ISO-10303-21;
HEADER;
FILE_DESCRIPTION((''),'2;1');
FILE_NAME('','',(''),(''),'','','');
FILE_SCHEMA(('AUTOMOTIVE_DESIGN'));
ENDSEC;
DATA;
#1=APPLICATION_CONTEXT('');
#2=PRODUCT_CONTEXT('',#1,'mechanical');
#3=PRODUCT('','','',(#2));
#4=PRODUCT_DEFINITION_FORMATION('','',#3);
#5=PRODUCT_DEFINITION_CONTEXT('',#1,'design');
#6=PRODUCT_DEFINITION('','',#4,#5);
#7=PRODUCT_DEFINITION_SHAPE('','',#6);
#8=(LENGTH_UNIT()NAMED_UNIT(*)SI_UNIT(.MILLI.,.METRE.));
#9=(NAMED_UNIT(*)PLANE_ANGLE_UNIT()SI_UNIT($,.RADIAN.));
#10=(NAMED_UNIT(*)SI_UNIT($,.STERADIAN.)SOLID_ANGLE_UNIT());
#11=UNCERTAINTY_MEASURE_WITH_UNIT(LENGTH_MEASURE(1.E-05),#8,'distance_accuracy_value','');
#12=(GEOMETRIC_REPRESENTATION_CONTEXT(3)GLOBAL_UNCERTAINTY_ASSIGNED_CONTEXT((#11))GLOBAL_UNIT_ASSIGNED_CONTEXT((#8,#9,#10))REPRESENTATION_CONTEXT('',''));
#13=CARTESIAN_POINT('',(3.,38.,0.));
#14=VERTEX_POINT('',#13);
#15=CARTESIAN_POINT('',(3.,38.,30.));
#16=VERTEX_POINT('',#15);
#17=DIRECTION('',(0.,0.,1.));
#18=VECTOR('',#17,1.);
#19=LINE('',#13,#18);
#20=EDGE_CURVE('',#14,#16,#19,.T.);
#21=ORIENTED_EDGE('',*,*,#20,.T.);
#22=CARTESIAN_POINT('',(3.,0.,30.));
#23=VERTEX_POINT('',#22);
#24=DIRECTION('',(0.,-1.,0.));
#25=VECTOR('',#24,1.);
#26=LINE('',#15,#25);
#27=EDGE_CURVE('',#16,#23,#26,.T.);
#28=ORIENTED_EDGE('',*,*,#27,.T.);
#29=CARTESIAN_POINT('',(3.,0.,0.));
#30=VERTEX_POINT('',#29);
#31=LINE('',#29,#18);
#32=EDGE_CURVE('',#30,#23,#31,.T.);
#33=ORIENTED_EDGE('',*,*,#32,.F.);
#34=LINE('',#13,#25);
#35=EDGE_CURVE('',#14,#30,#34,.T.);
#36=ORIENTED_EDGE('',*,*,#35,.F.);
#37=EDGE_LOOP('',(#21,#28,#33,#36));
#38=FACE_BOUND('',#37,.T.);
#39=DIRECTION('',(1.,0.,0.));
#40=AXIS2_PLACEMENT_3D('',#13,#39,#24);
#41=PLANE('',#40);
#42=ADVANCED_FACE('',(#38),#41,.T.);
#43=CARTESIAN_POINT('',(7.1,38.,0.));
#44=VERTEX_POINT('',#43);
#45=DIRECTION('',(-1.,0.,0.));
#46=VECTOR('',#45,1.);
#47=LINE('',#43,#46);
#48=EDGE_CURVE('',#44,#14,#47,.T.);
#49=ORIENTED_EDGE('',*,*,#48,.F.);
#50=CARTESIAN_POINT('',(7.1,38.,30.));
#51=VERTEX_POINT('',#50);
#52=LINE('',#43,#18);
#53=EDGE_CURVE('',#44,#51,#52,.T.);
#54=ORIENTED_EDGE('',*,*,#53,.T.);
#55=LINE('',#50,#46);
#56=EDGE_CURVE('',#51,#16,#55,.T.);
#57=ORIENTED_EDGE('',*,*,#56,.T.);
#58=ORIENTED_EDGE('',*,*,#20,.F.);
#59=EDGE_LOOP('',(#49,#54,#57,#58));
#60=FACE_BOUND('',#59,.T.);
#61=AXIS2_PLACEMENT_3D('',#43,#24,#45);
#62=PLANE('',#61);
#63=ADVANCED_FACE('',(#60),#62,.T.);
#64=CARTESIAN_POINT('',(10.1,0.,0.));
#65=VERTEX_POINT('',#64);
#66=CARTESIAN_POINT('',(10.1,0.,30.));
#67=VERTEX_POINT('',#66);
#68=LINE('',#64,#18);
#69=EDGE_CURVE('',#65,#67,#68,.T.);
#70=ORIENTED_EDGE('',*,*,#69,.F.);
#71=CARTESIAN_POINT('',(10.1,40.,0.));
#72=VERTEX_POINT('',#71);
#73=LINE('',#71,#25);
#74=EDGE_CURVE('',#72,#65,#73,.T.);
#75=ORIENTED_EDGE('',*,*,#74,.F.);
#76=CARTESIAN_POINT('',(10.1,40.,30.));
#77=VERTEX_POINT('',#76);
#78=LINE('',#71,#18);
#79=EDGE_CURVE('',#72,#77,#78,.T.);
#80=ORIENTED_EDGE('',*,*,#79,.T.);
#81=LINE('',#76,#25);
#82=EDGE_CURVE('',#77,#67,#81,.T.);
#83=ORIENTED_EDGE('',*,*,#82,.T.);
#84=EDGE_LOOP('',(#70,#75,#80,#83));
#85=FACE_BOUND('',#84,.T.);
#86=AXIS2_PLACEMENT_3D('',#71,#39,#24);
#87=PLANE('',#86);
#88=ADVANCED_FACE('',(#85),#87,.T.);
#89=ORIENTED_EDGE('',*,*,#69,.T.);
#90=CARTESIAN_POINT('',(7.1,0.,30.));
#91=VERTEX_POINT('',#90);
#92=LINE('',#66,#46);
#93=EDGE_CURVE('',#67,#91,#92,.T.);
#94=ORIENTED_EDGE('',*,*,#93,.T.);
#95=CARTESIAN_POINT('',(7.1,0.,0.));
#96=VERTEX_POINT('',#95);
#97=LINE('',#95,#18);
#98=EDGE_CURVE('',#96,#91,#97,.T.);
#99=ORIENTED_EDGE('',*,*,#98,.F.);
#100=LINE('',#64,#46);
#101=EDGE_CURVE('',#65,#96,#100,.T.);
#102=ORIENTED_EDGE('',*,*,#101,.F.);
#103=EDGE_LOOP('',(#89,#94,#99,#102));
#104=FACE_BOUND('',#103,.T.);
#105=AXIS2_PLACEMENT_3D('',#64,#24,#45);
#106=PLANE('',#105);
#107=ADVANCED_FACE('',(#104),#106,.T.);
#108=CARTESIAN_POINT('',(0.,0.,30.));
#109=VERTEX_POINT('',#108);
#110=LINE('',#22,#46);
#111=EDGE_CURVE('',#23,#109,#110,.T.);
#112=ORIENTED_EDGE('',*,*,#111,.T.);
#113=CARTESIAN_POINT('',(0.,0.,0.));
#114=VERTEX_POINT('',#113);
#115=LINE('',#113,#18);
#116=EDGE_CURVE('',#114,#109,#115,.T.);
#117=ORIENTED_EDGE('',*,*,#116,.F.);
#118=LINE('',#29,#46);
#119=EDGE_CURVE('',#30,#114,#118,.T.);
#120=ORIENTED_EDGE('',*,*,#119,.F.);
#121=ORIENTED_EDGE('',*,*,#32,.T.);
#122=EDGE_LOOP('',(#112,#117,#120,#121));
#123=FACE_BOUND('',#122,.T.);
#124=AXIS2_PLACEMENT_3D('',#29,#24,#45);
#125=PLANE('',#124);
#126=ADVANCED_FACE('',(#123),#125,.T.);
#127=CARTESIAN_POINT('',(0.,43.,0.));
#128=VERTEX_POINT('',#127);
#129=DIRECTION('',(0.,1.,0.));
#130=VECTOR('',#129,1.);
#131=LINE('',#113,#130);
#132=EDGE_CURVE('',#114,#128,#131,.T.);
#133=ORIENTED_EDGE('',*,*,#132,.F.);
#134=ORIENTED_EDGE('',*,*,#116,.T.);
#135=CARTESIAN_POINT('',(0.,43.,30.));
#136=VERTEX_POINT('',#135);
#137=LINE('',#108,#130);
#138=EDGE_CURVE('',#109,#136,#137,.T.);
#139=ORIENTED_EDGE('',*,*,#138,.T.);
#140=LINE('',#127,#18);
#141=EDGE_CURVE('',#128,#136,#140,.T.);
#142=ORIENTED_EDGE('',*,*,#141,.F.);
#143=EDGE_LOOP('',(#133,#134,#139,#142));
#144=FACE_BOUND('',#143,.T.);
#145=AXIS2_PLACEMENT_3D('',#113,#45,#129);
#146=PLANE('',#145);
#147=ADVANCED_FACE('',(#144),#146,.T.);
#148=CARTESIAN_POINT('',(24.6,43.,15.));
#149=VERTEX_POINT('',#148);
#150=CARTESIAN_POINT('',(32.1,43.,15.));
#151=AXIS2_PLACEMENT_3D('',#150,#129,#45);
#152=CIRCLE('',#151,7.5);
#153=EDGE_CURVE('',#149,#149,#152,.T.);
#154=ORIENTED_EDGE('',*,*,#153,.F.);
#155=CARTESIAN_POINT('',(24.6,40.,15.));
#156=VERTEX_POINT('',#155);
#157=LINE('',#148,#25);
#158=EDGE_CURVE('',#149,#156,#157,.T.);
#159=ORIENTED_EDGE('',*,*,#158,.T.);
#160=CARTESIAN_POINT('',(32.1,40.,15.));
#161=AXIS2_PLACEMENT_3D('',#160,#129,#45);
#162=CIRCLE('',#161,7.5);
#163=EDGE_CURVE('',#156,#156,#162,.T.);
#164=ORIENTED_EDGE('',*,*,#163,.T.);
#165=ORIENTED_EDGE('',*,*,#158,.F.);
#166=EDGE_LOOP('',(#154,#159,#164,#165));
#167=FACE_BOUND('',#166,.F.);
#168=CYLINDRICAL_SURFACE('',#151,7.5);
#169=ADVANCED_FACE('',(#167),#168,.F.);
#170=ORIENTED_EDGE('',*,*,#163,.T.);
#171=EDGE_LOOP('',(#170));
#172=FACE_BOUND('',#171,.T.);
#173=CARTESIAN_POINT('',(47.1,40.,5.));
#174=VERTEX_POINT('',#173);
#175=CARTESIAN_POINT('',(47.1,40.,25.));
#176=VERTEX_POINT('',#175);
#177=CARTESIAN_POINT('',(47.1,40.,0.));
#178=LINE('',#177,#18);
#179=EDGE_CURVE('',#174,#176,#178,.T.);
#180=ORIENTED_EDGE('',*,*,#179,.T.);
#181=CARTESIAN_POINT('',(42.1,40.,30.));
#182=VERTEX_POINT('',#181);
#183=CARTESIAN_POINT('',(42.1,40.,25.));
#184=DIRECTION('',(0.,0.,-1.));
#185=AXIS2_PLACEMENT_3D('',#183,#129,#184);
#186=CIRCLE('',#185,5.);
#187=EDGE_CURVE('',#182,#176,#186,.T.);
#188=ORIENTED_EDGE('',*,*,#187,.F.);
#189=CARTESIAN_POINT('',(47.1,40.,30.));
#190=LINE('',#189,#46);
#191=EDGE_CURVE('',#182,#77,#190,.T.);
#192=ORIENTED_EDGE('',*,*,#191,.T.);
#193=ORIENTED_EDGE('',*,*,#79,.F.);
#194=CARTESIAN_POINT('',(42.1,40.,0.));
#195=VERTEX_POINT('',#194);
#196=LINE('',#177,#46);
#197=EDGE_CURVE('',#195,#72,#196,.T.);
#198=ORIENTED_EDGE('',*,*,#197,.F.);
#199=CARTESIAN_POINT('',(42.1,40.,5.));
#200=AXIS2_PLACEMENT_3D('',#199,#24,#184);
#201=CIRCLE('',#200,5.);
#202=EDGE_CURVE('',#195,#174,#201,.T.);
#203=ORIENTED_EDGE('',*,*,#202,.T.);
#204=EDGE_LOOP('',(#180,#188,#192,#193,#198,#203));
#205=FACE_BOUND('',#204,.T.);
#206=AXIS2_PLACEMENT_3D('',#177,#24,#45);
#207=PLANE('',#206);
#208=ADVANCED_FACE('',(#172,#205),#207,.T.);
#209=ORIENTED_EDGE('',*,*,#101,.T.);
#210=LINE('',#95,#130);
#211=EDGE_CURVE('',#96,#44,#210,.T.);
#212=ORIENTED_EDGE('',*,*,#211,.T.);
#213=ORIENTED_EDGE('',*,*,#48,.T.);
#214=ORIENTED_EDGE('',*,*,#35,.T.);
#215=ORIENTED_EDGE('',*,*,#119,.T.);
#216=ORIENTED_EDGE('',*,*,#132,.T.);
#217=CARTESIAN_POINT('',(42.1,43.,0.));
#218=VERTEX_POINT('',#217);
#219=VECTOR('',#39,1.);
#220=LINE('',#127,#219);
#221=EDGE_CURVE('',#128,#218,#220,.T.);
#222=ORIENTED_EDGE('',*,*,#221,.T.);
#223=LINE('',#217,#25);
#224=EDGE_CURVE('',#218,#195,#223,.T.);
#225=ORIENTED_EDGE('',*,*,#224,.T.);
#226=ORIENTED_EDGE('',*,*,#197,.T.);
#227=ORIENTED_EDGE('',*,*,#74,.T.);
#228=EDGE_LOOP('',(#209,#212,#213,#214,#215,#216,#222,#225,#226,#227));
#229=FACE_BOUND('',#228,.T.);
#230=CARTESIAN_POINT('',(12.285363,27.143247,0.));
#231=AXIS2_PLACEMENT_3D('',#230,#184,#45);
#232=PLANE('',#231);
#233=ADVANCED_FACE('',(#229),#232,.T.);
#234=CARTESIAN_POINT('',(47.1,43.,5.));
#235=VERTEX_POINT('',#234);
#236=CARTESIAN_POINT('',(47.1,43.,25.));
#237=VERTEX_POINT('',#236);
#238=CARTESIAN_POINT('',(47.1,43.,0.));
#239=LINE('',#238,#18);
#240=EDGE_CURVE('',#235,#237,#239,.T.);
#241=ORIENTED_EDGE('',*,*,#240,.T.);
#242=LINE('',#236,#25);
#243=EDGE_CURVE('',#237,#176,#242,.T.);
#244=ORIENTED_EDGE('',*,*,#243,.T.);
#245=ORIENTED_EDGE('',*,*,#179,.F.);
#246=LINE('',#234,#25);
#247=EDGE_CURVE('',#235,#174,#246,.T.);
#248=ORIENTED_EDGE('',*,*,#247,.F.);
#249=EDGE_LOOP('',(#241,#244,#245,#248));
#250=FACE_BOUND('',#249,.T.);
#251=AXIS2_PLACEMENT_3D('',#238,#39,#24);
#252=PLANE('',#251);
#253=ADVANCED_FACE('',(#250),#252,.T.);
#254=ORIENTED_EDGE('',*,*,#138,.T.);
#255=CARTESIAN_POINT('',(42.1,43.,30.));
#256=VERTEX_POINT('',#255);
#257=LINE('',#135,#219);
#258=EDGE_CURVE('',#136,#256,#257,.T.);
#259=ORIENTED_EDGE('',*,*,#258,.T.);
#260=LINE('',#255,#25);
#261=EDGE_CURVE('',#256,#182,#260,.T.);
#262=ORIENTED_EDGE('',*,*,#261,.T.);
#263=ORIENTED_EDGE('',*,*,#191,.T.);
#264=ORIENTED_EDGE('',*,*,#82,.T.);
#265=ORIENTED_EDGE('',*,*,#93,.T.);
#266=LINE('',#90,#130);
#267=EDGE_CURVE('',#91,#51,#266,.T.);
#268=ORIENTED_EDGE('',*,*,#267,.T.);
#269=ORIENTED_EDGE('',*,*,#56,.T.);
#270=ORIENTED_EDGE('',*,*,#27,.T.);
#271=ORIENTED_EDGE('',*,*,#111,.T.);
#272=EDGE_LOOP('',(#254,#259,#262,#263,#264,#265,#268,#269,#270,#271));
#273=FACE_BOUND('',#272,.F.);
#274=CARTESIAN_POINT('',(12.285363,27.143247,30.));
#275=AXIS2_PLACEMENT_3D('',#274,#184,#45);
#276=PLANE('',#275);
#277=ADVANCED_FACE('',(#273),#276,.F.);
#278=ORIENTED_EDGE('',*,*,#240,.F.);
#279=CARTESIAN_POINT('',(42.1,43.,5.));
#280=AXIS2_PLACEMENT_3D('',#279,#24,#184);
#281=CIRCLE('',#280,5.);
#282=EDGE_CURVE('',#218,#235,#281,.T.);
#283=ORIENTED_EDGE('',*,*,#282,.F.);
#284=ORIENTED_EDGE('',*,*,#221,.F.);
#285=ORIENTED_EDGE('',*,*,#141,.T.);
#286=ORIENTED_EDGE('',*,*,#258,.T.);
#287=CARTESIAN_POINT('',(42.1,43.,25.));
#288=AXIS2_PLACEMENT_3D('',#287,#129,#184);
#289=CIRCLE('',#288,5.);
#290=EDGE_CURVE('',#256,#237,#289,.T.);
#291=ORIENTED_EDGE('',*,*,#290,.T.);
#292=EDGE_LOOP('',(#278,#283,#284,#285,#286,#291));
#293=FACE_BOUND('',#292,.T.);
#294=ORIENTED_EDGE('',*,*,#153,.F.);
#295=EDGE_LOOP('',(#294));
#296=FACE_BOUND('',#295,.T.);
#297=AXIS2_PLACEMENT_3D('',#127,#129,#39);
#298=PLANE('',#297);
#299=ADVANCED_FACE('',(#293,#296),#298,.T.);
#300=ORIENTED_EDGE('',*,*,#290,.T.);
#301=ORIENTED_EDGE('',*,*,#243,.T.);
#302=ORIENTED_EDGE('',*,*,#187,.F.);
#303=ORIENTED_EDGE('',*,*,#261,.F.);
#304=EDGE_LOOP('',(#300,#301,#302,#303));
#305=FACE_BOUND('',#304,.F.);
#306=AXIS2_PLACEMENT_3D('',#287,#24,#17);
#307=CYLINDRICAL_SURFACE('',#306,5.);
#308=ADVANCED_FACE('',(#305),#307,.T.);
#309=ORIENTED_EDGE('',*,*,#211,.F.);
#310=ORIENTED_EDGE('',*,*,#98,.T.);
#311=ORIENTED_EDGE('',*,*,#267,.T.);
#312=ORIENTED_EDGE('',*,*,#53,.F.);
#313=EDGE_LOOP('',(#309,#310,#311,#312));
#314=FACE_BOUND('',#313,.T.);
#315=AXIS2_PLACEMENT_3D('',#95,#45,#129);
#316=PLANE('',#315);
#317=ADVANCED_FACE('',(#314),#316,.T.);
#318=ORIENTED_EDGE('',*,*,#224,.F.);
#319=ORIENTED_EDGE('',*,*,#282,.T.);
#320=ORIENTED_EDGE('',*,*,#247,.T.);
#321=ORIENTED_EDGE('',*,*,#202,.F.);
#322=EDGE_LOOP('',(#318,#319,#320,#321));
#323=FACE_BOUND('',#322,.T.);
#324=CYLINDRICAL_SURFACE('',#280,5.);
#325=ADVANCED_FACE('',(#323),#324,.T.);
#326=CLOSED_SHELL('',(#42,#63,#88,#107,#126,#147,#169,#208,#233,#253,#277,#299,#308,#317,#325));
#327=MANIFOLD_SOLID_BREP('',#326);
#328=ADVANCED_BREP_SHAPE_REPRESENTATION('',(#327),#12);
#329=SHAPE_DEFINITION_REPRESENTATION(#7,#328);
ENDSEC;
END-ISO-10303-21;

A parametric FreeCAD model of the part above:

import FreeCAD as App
import Part
import Sketcher

V = App.Vector


def edges_at(feature, points):
    """Names of the edges that pass closest to the given points."""
    edges = feature.Shape.Edges
    near = lambda p: min(range(len(edges)), key=lambda i: edges[i].distToShape(Part.Vertex(*p))[0])
    return sorted({f"Edge{near(p) + 1}" for p in points})

doc = App.newDocument("Part")
params = doc.addObject("Spreadsheet::Sheet", "Params")
for row, (alias, value) in enumerate([
    ("sketch1_width", "3 mm"),
    ("sketch1_width2", "37 mm"),
    ("sketch1_height", "43 mm"),
    ("sketch1_height2", "38 mm"),
    ("sketch1_width3", "4.1 mm"),
    ("pad1_length", "30 mm"),
    ("sketch2_diameter", "15 mm"),
    ("pocket1_length", "5 mm"),
    ("fillet_radius", "5 mm"),
], start=1):
    params.set(f"A{row}", alias)
    params.set(f"B{row}", "=" + value)
    params.setAlias(f"B{row}", alias)

body = doc.addObject("PartDesign::Body", "Body")

# Sketch on XY plane
sketch1 = body.newObject("Sketcher::SketchObject", "Sketch")
sketch1.AttachmentSupport = (doc.getObject("XY_Plane"), [""])
sketch1.MapMode = "FlatFace"
sketch1.addGeometry(Part.LineSegment(V(0, 43, 0), V(0, 0, 0)), False)
sketch1.addGeometry(Part.LineSegment(V(0, 0, 0), V(3, 0, 0)), False)
sketch1.addGeometry(Part.LineSegment(V(3, 0, 0), V(3, 38, 0)), False)
sketch1.addGeometry(Part.LineSegment(V(3, 38, 0), V(7.1, 38, 0)), False)
sketch1.addGeometry(Part.LineSegment(V(7.1, 38, 0), V(7.1, 0, 0)), False)
sketch1.addGeometry(Part.LineSegment(V(7.1, 0, 0), V(10.1, 0, 0)), False)
sketch1.addGeometry(Part.LineSegment(V(10.1, 0, 0), V(10.1, 40, 0)), False)
sketch1.addGeometry(Part.LineSegment(V(10.1, 40, 0), V(47.1, 40, 0)), False)
sketch1.addGeometry(Part.LineSegment(V(47.1, 40, 0), V(47.1, 43, 0)), False)
sketch1.addGeometry(Part.LineSegment(V(47.1, 43, 0), V(0, 43, 0)), False)
sketch1.addConstraint(Sketcher.Constraint("Coincident", 0, 2, 1, 1))
sketch1.addConstraint(Sketcher.Constraint("Coincident", 1, 2, 2, 1))
sketch1.addConstraint(Sketcher.Constraint("Coincident", 2, 2, 3, 1))
sketch1.addConstraint(Sketcher.Constraint("Coincident", 3, 2, 4, 1))
sketch1.addConstraint(Sketcher.Constraint("Coincident", 4, 2, 5, 1))
sketch1.addConstraint(Sketcher.Constraint("Coincident", 5, 2, 6, 1))
sketch1.addConstraint(Sketcher.Constraint("Coincident", 6, 2, 7, 1))
sketch1.addConstraint(Sketcher.Constraint("Coincident", 7, 2, 8, 1))
sketch1.addConstraint(Sketcher.Constraint("Coincident", 8, 2, 9, 1))
sketch1.addConstraint(Sketcher.Constraint("Coincident", 9, 2, 0, 1))
sketch1.addConstraint(Sketcher.Constraint("Vertical", 0))
sketch1.addConstraint(Sketcher.Constraint("Horizontal", 1))
sketch1.addConstraint(Sketcher.Constraint("Vertical", 2))
sketch1.addConstraint(Sketcher.Constraint("Horizontal", 3))
sketch1.addConstraint(Sketcher.Constraint("Vertical", 4))
sketch1.addConstraint(Sketcher.Constraint("Horizontal", 5))
sketch1.addConstraint(Sketcher.Constraint("Vertical", 6))
sketch1.addConstraint(Sketcher.Constraint("Horizontal", 7))
sketch1.addConstraint(Sketcher.Constraint("Vertical", 8))
sketch1.addConstraint(Sketcher.Constraint("Horizontal", 9))
sketch1.addConstraint(Sketcher.Constraint("Coincident", 0, 2, -1, 1))
sketch1.addConstraint(Sketcher.Constraint("PointOnObject", 4, 2, -1))
sketch1.addConstraint(Sketcher.Constraint("Equal", 1, 5))
sketch1.addConstraint(Sketcher.Constraint("Equal", 5, 8))
sketch1.addConstraint(Sketcher.Constraint("DistanceX", 1, 1, 1, 2, 3.0))
sketch1.addConstraint(Sketcher.Constraint("DistanceX", 7, 1, 7, 2, 37.0))
sketch1.addConstraint(Sketcher.Constraint("DistanceY", 0, 2, 0, 1, 43.0))
sketch1.addConstraint(Sketcher.Constraint("DistanceY", 2, 1, 2, 2, 38.0))
sketch1.addConstraint(Sketcher.Constraint("DistanceX", 3, 1, 3, 2, 4.1))
sketch1.setExpression("Constraints[24]", "Params.sketch1_width")
sketch1.setExpression("Constraints[25]", "Params.sketch1_width2")
sketch1.setExpression("Constraints[26]", "Params.sketch1_height")
sketch1.setExpression("Constraints[27]", "Params.sketch1_height2")
sketch1.setExpression("Constraints[28]", "Params.sketch1_width3")
pad1 = body.newObject("PartDesign::Pad", "Pad")
pad1.Profile = sketch1
pad1.setExpression("Length", "Params.pad1_length")

# Sketch on XZ plane
sketch2 = body.newObject("Sketcher::SketchObject", "Sketch001")
sketch2.AttachmentSupport = (doc.getObject("XZ_Plane"), [""])
sketch2.MapMode = "FlatFace"
sketch2.AttachmentOffset = App.Placement(V(0, 0, -43), App.Rotation())
sketch2.addGeometry(Part.Circle(V(32.1, 15, 0), V(0, 0, 1), 7.5), False)
sketch2.addConstraint(Sketcher.Constraint("Diameter", 0, 15.0))
sketch2.addConstraint(Sketcher.Constraint("DistanceY", -1, 1, 0, 3, 15.0))
sketch2.addConstraint(Sketcher.Constraint("DistanceX", -1, 1, 0, 3, 32.1))
sketch2.setExpression("Constraints[0]", "Params.sketch2_diameter")
pocket1 = body.newObject("PartDesign::Pocket", "Pocket")
pocket1.Profile = sketch2
pocket1.setExpression("Length", "Params.pocket1_length")
pocket1.Reversed = True
doc.recompute()

fillet = body.newObject("PartDesign::Fillet", "Fillet")
fillet.Base = (pocket1, edges_at(pocket1, [(47.1, 41.5, 0), (47.1, 41.5, 30)]))
fillet.setExpression("Radius", "Params.fillet_radius")

doc.recompute()
